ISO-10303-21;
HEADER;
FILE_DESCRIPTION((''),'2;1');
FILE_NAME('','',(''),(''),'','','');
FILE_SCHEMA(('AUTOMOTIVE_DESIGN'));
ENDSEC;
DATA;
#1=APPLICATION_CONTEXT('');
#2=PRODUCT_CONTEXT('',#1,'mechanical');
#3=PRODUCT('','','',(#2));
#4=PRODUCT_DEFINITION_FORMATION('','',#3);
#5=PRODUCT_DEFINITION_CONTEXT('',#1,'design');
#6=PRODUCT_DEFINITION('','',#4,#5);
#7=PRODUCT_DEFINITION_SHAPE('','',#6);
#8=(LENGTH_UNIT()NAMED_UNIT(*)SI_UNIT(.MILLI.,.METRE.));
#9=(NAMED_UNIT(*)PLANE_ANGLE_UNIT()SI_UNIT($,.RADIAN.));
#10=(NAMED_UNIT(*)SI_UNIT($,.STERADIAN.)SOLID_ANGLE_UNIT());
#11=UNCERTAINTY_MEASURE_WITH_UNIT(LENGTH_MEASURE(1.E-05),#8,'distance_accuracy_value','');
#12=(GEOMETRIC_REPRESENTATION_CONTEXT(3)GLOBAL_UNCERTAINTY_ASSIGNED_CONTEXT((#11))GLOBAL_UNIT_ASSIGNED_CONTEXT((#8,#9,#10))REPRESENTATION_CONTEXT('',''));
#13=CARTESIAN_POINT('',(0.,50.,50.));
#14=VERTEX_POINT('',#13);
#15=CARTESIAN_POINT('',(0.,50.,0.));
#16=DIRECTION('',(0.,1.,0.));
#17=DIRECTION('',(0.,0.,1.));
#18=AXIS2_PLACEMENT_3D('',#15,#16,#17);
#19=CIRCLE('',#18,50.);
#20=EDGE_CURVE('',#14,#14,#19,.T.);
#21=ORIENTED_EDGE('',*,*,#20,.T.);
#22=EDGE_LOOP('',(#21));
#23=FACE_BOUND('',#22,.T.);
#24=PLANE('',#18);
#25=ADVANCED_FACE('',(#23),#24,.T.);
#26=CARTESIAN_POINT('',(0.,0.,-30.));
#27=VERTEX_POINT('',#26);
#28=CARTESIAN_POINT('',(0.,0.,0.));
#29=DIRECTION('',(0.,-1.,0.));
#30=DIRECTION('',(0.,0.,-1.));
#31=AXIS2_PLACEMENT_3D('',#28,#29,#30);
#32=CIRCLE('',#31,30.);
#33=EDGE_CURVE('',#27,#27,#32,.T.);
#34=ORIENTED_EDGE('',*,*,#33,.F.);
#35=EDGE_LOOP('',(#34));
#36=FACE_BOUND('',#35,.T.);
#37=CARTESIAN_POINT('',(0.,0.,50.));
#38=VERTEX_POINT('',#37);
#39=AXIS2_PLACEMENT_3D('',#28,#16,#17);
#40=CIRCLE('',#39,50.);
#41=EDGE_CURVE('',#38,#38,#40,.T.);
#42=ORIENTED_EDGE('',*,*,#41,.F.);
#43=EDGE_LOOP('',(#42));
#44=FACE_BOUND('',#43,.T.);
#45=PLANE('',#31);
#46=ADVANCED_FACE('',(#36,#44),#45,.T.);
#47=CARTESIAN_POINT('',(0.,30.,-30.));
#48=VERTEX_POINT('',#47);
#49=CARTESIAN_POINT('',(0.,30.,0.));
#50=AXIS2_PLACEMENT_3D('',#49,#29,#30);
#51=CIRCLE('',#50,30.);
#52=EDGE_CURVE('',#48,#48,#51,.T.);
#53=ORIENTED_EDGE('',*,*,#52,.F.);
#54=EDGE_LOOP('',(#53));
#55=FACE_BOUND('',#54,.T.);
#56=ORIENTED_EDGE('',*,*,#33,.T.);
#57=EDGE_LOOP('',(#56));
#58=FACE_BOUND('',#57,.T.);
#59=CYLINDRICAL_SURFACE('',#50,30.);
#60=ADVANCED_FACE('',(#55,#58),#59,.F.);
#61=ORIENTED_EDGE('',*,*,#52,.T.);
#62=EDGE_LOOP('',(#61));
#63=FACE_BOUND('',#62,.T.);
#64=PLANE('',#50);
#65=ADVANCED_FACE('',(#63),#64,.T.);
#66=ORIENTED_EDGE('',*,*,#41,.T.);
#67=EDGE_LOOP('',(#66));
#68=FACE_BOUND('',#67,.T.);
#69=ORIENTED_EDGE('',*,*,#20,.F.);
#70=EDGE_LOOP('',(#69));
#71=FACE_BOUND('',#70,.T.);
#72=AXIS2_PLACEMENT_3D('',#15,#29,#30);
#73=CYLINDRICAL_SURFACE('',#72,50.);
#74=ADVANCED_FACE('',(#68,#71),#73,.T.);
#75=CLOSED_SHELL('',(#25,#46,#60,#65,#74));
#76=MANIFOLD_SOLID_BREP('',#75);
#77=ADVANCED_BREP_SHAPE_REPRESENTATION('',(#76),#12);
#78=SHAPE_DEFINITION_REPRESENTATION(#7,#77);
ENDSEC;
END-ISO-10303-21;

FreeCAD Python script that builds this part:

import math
import FreeCAD as App
import Part
import Sketcher


def edges_at(feature, points):
    """Names of the edges that pass closest to the given points."""
    edges = feature.Shape.Edges
    near = lambda p: min(range(len(edges)), key=lambda i: edges[i].distToShape(Part.Vertex(*p))[0])
    return sorted({f"Edge{near(p) + 1}" for p in points})


def add_polygon(sketch, points):
    """Adds a closed chain of lines whose ends are joined by coincident constraints."""
    first, n = sketch.GeometryCount, len(points)
    for a, b in zip(points, points[1:] + points[:1]):
        sketch.addGeometry(Part.LineSegment(App.Vector(*a, 0), App.Vector(*b, 0)), False)
    for i in range(n):
        sketch.addConstraint(Sketcher.Constraint("Coincident", first + i, 2, first + (i + 1) % n, 1))

doc = App.newDocument("Part")
body = doc.addObject("PartDesign::Body", "Body")

sketch1 = doc.addObject("Sketcher::SketchObject", "Sketch")
body.addObject(sketch1)
sketch1.AttachmentSupport = (doc.XZ_Plane, [""])
sketch1.MapMode = "FlatFace"
add_polygon(sketch1, [(-25, -12), (-25, 12), (25, 12), (25, -12)])
sketch1.addConstraint([
    Sketcher.Constraint("Vertical", 0),
    Sketcher.Constraint("Horizontal", 1),
    Sketcher.Constraint("Vertical", 2),
    Sketcher.Constraint("Horizontal", 3),
    Sketcher.Constraint("Symmetric", 0, 2, 2, 2, -1, 1),
    Sketcher.Constraint("DistanceX", 1, 1, 1, 2, 50.0),
    Sketcher.Constraint("DistanceY", 0, 1, 0, 2, 25.0),
])
pad1 = doc.addObject("PartDesign::Pad", "Pad")
body.addObject(pad1)
pad1.Profile = sketch1
pad1.Length = 25
pad1.Reversed = True
doc.recompute()

fillet = doc.addObject("PartDesign::Fillet", "Fillet")
body.addObject(fillet)
fillet.Base = (pad1, edges_at(pad1, [
    (25, 12.5, 12.5),
    (-25, 12.5, 12.5),
    (-25, 12.5, -12.5),
    (25, 12.5, -12.5),
]))
fillet.Radius = 5

sketch2 = doc.addObject("Sketcher::SketchObject", "Sketch001")
body.addObject(sketch2)
sketch2.AttachmentSupport = (doc.XZ_Plane, [""])
sketch2.MapMode = "FlatFace"
sketch2.AttachmentOffset = App.Placement(App.Vector(0, 0, -25), App.Rotation())
sketch2.addGeometry([
    Part.LineSegment(App.Vector(13, -9, 0), App.Vector(-13, -9, 0)),
    Part.ArcOfCircle(Part.Circle(App.Vector(-13, 0, 0), App.Vector(0, 0, 1), 9), math.radians(90), math.radians(270)),
    Part.LineSegment(App.Vector(-13, 9, 0), App.Vector(13, 9, 0)),
    Part.ArcOfCircle(Part.Circle(App.Vector(13, 0, 0), App.Vector(0, 0, 1), 9), math.radians(-90), math.radians(90)),
], False)
sketch2.addConstraint([
    Sketcher.Constraint("Tangent", 0, 2, 1, 2),
    Sketcher.Constraint("Tangent", 1, 1, 2, 1),
    Sketcher.Constraint("Tangent", 2, 2, 3, 2),
    Sketcher.Constraint("Tangent", 3, 1, 0, 1),
    Sketcher.Constraint("Horizontal", 0),
    Sketcher.Constraint("Horizontal", 2),
    Sketcher.Constraint("PointOnObject", 1, 3, -1),
    Sketcher.Constraint("DistanceX", -1, 1, 3, 3, 13.06),
    Sketcher.Constraint("Radius", 1, 9.034247),
    Sketcher.Constraint("DistanceX", 0, 2, 0, 1, 26.118352),
])
pocket1 = doc.addObject("PartDesign::Pocket", "Pocket")
body.addObject(pocket1)
pocket1.Profile = sketch2
pocket1.Length = 15
pocket1.Reversed = True

sketch3 = doc.addObject("Sketcher::SketchObject", "Sketch002")
body.addObject(sketch3)
sketch3.AttachmentSupport = (doc.XZ_Plane, [""])
sketch3.MapMode = "FlatFace"
sketch3.addGeometry(Part.Circle(App.Vector(0, 0, 0), App.Vector(0, 0, 1), 50), False)
sketch3.addConstraint([
    Sketcher.Constraint("Coincident", 0, 3, -1, 1),
    Sketcher.Constraint("Diameter", 0, 100.0),
])
pad2 = doc.addObject("PartDesign::Pad", "Pad001")
body.addObject(pad2)
pad2.Profile = sketch3
pad2.Length = 50
pad2.Reversed = True

sketch4 = doc.addObject("Sketcher::SketchObject", "Sketch003")
body.addObject(sketch4)
sketch4.AttachmentSupport = (doc.XZ_Plane, [""])
sketch4.MapMode = "FlatFace"
sketch4.addGeometry(Part.Circle(App.Vector(0, 0, 0), App.Vector(0, 0, 1), 30), False)
sketch4.addConstraint([
    Sketcher.Constraint("Coincident", 0, 3, -1, 1),
    Sketcher.Constraint("Diameter", 0, 60.0),
])
pocket2 = doc.addObject("PartDesign::Pocket", "Pocket001")
body.addObject(pocket2)
pocket2.Profile = sketch4
pocket2.Length = 30

doc.recompute()
